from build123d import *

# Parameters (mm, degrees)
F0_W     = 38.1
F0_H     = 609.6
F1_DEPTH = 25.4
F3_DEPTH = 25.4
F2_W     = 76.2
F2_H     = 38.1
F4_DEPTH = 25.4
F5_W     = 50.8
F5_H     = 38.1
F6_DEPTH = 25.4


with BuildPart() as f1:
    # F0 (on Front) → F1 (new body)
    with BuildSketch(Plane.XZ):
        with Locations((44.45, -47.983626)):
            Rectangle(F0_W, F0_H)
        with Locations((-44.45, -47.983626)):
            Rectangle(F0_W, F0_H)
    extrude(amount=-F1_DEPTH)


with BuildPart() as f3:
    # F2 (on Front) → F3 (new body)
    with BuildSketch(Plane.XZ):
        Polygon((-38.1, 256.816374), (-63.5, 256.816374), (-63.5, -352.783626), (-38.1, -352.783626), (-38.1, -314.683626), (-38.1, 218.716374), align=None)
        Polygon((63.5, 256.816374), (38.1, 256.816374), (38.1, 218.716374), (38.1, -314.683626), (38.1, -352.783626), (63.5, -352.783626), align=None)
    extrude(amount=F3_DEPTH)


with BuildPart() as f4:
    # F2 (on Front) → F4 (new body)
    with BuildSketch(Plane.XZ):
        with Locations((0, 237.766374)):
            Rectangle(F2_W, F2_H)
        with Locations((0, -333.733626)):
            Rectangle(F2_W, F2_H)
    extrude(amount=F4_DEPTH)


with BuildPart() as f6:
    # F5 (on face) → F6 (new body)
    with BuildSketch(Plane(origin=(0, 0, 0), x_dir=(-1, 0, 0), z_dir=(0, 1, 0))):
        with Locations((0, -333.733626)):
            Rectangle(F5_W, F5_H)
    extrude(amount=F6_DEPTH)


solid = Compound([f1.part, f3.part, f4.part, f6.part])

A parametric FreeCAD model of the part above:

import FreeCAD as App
import Part
import Sketcher
from FreeCAD import Vector
Q = App.Units.Quantity


def add_polygon(sketch, points):
    """Adds a closed chain of lines whose ends are joined by coincident constraints."""
    first, n = sketch.GeometryCount, len(points)
    for a, b in zip(points, points[1:] + points[:1]):
        sketch.addGeometry(Part.LineSegment(App.Vector(*a, 0), App.Vector(*b, 0)), False)
    for i in range(n):
        sketch.addConstraint(Sketcher.Constraint("Coincident", first + i, 2, first + (i + 1) % n, 1))

doc = App.newDocument("Part")
body = doc.addObject("PartDesign::Body", "Body")
body.AllowCompound = True

# Sketch on XZ plane
sketch1 = body.newObject("Sketcher::SketchObject", "Sketch")
sketch1.AttachmentSupport = (doc.getObject("XZ_Plane"), [""])
sketch1.MapMode = "FlatFace"
add_polygon(sketch1, [(25, 257), (25, -353), (64, -353), (64, 257)])  # lines 0-3
add_polygon(sketch1, [(-64, 257), (-64, -353), (-25, -353), (-25, 257)])  # lines 4-7
sketch1.addConstraint([
    Sketcher.Constraint("Vertical", 0),
    Sketcher.Constraint("Horizontal", 1),
    Sketcher.Constraint("Vertical", 2),
    Sketcher.Constraint("Horizontal", 3),
    Sketcher.Constraint("Vertical", 4),
    Sketcher.Constraint("Horizontal", 5),
    Sketcher.Constraint("Vertical", 6),
    Sketcher.Constraint("Horizontal", 7),
    Sketcher.Constraint("Symmetric", 1, 2, 4, 2, -2),
    Sketcher.Constraint("Symmetric", 3, 2, 6, 2, -2),
    Sketcher.Constraint("DistanceY", 0, 2, 0, 1, Q("24 in")),
    Sketcher.Constraint("DistanceX", 1, 1, 1, 2, Q("1.5 in")),
    Sketcher.Constraint("DistanceX", -1, 1, 0, 2, Q("1 in")),
    Sketcher.Constraint("DistanceY", 0, 2, -1, 1, 352.783626),
])
pad1 = body.newObject("PartDesign::Pad", "Pad")
pad1.Profile = sketch1
pad1.Length = Q("1 in")
pad1.Reversed = True
body2 = doc.addObject("PartDesign::Body", "Body001")
body2.AllowCompound = True

# Sketch on XZ plane
sketch2 = body2.newObject("Sketcher::SketchObject", "Sketch001")
sketch2.AttachmentSupport = (doc.getObject("XZ_Plane001"), [""])
sketch2.MapMode = "FlatFace"
add_polygon(sketch2, [(-38, 257), (-64, 257), (-64, -353), (-38, -353)])  # lines 0-3
add_polygon(sketch2, [(64, 257), (38, 257), (38, -353), (64, -353)])  # lines 4-7
sketch2.addConstraint([
    Sketcher.Constraint("Horizontal", 0),
    Sketcher.Constraint("Vertical", 1),
    Sketcher.Constraint("Horizontal", 2),
    Sketcher.Constraint("Vertical", 3),
    Sketcher.Constraint("Horizontal", 4),
    Sketcher.Constraint("Vertical", 5),
    Sketcher.Constraint("Horizontal", 6),
    Sketcher.Constraint("Vertical", 7),
    Sketcher.Constraint("Symmetric", 3, 2, 4, 2, -2),
    Sketcher.Constraint("Symmetric", 1, 2, 6, 2, -2),
    Sketcher.Constraint("DistanceX", 0, 2, 0, 1, Q("1 in")),
    Sketcher.Constraint("DistanceY", 1, 2, 1, 1, Q("24 in")),
    Sketcher.Constraint("DistanceX", 3, 2, 4, 2, Q("3 in")),
    Sketcher.Constraint("DistanceY", -1, 1, 0, 2, 256.816374),
])
pad2 = body2.newObject("PartDesign::Pad", "Pad001")
pad2.Profile = sketch2
pad2.Length = Q("1 in")
body3 = doc.addObject("PartDesign::Body", "Body002")
body3.AllowCompound = True

# Sketch on XZ plane
sketch3 = body3.newObject("Sketcher::SketchObject", "Sketch002")
sketch3.AttachmentSupport = (doc.getObject("XZ_Plane002"), [""])
sketch3.MapMode = "FlatFace"
add_polygon(sketch3, [(-38, 257), (-38, 219), (38, 219), (38, 257)])  # lines 0-3
add_polygon(sketch3, [(-38, -315), (-38, -353), (38, -353), (38, -315)])  # lines 4-7
sketch3.addConstraint([
    Sketcher.Constraint("Vertical", 0),
    Sketcher.Constraint("Horizontal", 1),
    Sketcher.Constraint("Vertical", 2),
    Sketcher.Constraint("Horizontal", 3),
    Sketcher.Constraint("Vertical", 4),
    Sketcher.Constraint("Horizontal", 5),
    Sketcher.Constraint("Vertical", 6),
    Sketcher.Constraint("Horizontal", 7),
    Sketcher.Constraint("Vertical", 3, 2, 4, 2),
    Sketcher.Constraint("Vertical", 2, 2, 5, 2),
    Sketcher.Constraint("Equal", 2, 4),
    Sketcher.Constraint("DistanceX", 1, 1, 1, 2, Q("3 in")),
    Sketcher.Constraint("DistanceY", 0, 2, 0, 1, Q("1.5 in")),
    Sketcher.Constraint("DistanceY", 4, 2, 3, 2, Q("24 in")),
    Sketcher.Constraint("DistanceX", 0, 2, -1, 1, Q("1.5 in")),
    Sketcher.Constraint("DistanceY", -1, 1, 0, 2, 218.716374),
])
pad3 = body3.newObject("PartDesign::Pad", "Pad002")
pad3.Profile = sketch3
pad3.Length = Q("1 in")
body4 = doc.addObject("PartDesign::Body", "Body003")

# Sketch on XZ plane
sketch4 = body4.newObject("Sketcher::SketchObject", "Sketch003")
sketch4.AttachmentSupport = (doc.getObject("XZ_Plane003"), [""])
sketch4.MapMode = "FlatFace"
add_polygon(sketch4, [(25, -315), (25, -353), (-25, -353), (-25, -315)])  # lines 0-3
sketch4.addConstraint([
    Sketcher.Constraint("Vertical", 0),
    Sketcher.Constraint("Horizontal", 1),
    Sketcher.Constraint("Vertical", 2),
    Sketcher.Constraint("Horizontal", 3),
    Sketcher.Constraint("DistanceX", 1, 2, 1, 1, Q("2 in")),
    Sketcher.Constraint("DistanceY", 0, 2, 0, 1, Q("1.5 in")),
    Sketcher.Constraint("DistanceX", -1, 1, 0, 2, Q("1 in")),
    Sketcher.Constraint("DistanceY", 0, 2, -1, 1, 352.783626),
])
pad4 = body4.newObject("PartDesign::Pad", "Pad003")
pad4.Profile = sketch4
pad4.Length = Q("1 in")
pad4.Reversed = True

doc.recompute()
